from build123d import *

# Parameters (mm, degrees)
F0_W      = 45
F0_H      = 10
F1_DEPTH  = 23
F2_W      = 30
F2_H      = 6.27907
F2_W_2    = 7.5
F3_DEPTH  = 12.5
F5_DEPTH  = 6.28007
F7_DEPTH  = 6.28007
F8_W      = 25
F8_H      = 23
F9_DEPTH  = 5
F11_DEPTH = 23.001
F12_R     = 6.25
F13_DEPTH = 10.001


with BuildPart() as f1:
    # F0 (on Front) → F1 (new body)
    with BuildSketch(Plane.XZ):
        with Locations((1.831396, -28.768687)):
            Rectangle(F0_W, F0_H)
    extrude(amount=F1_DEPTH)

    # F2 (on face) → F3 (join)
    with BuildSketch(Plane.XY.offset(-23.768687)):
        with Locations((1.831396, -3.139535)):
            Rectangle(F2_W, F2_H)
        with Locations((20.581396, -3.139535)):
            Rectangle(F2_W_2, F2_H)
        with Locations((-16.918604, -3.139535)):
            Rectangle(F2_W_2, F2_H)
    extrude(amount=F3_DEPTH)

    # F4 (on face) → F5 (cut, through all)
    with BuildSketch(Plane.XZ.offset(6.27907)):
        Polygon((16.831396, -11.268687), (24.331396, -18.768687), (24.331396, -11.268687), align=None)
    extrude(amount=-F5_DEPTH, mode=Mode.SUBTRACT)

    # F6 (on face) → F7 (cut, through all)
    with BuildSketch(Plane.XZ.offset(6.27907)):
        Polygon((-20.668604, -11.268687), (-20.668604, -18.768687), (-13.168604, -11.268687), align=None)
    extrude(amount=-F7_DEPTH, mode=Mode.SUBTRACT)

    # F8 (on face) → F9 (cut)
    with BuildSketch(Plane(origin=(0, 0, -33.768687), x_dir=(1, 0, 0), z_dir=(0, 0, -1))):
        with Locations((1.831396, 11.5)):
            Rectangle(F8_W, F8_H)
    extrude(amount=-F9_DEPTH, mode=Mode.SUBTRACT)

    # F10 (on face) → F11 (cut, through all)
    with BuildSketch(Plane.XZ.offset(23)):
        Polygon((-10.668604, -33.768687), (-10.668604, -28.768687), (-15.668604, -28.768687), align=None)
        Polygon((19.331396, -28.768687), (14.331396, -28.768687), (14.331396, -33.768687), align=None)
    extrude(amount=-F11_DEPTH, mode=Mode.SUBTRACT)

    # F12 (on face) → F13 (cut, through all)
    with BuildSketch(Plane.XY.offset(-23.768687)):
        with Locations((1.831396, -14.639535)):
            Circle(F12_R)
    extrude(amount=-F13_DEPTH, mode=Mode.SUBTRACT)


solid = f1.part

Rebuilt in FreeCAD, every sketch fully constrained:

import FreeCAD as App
import Part
import Sketcher
from FreeCAD import Vector
Q = App.Units.Quantity

doc = App.newDocument("Part")
params = doc.addObject("Spreadsheet::Sheet", "Params")
for row, (alias, value) in enumerate([
    ("sketch1_width", "45 mm"),
    ("sketch1_height", "10 mm"),
    ("pad1_length", "23 mm"),
    ("sketch2_width", "45 mm"),
    ("pad2_length", "12.5 mm"),
    ("sketch3_width", "7.5 mm"),
    ("sketch4_width", "7.5 mm"),
    ("sketch5_width", "25 mm"),
    ("sketch5_height", "23 mm"),
    ("pocket3_length", "5 mm"),
    ("sketch6_width", "5 mm"),
    ("sketch7_diameter", "12.5 mm"),
], start=1):
    params.set(f"A{row}", alias)
    params.set(f"B{row}", "=" + value)
    params.setAlias(f"B{row}", alias)

body = doc.addObject("PartDesign::Body", "Body")

# Sketch on XZ plane
sketch1 = body.newObject("Sketcher::SketchObject", "Sketch")
sketch1.AttachmentSupport = (doc.getObject("XZ_Plane"), [""])
sketch1.MapMode = "FlatFace"
sketch1.addGeometry(Part.LineSegment(Vector(-21, -24, 0), Vector(-21, -34, 0)), False)
sketch1.addGeometry(Part.LineSegment(Vector(-21, -34, 0), Vector(24, -34, 0)), False)
sketch1.addGeometry(Part.LineSegment(Vector(24, -34, 0), Vector(24, -24, 0)), False)
sketch1.addGeometry(Part.LineSegment(Vector(24, -24, 0), Vector(-21, -24, 0)), False)
sketch1.addConstraint(Sketcher.Constraint("Coincident", 0, 2, 1, 1))
sketch1.addConstraint(Sketcher.Constraint("Coincident", 1, 2, 2, 1))
sketch1.addConstraint(Sketcher.Constraint("Coincident", 2, 2, 3, 1))
sketch1.addConstraint(Sketcher.Constraint("Coincident", 3, 2, 0, 1))
sketch1.addConstraint(Sketcher.Constraint("Vertical", 0))
sketch1.addConstraint(Sketcher.Constraint("Horizontal", 1))
sketch1.addConstraint(Sketcher.Constraint("Vertical", 2))
sketch1.addConstraint(Sketcher.Constraint("Horizontal", 3))
sketch1.addConstraint(Sketcher.Constraint("DistanceX", 1, 1, 1, 2, Q("45 mm")))
sketch1.addConstraint(Sketcher.Constraint("DistanceY", 0, 2, 0, 1, Q("10 mm")))
sketch1.addConstraint(Sketcher.Constraint("DistanceX", 0, 2, -1, 1, Q("20.668604 mm")))
sketch1.addConstraint(Sketcher.Constraint("DistanceY", 0, 2, -1, 1, Q("33.768687 mm")))
sketch1.setExpression("Constraints[8]", "Params.sketch1_width")
sketch1.setExpression("Constraints[9]", "Params.sketch1_height")
pad1 = body.newObject("PartDesign::Pad", "Pad")
pad1.Profile = sketch1
pad1.setExpression("Length", "Params.pad1_length")

# Sketch on XY plane
sketch2 = body.newObject("Sketcher::SketchObject", "Sketch001")
sketch2.AttachmentSupport = (doc.getObject("XY_Plane"), [""])
sketch2.MapMode = "FlatFace"
sketch2.AttachmentOffset = App.Placement(Vector(0, 0, -23.768687), App.Rotation())
sketch2.addGeometry(Part.LineSegment(Vector(24, -6, 0), Vector(24, 0, 0)), False)
sketch2.addGeometry(Part.LineSegment(Vector(24, 0, 0), Vector(-21, 0, 0)), False)
sketch2.addGeometry(Part.LineSegment(Vector(-21, 0, 0), Vector(-21, -6, 0)), False)
sketch2.addGeometry(Part.LineSegment(Vector(-21, -6, 0), Vector(24, -6, 0)), False)
sketch2.addConstraint(Sketcher.Constraint("Coincident", 0, 2, 1, 1))
sketch2.addConstraint(Sketcher.Constraint("Coincident", 1, 2, 2, 1))
sketch2.addConstraint(Sketcher.Constraint("Coincident", 2, 2, 3, 1))
sketch2.addConstraint(Sketcher.Constraint("Coincident", 3, 2, 0, 1))
sketch2.addConstraint(Sketcher.Constraint("Vertical", 0))
sketch2.addConstraint(Sketcher.Constraint("Horizontal", 1))
sketch2.addConstraint(Sketcher.Constraint("Vertical", 2))
sketch2.addConstraint(Sketcher.Constraint("Horizontal", 3))
sketch2.addConstraint(Sketcher.Constraint("PointOnObject", 0, 2, -1))
sketch2.addConstraint(Sketcher.Constraint("DistanceX", 1, 2, 1, 1, Q("45 mm")))
sketch2.addConstraint(Sketcher.Constraint("DistanceY", 0, 1, 0, 2, Q("6.27907 mm")))
sketch2.addConstraint(Sketcher.Constraint("DistanceX", -1, 1, 0, 2, Q("24.331396 mm")))
sketch2.setExpression("Constraints[9]", "Params.sketch2_width")
pad2 = body.newObject("PartDesign::Pad", "Pad001")
pad2.Profile = sketch2
pad2.setExpression("Length", "Params.pad2_length")

# Sketch on XZ plane
sketch3 = body.newObject("Sketcher::SketchObject", "Sketch002")
sketch3.AttachmentSupport = (doc.getObject("XZ_Plane"), [""])
sketch3.MapMode = "FlatFace"
sketch3.AttachmentOffset = App.Placement(Vector(0, 0, 6.27907), App.Rotation())
sketch3.addGeometry(Part.LineSegment(Vector(17, -11, 0), Vector(24, -19, 0)), False)
sketch3.addGeometry(Part.LineSegment(Vector(24, -19, 0), Vector(24, -11, 0)), False)
sketch3.addGeometry(Part.LineSegment(Vector(24, -11, 0), Vector(17, -11, 0)), False)
sketch3.addConstraint(Sketcher.Constraint("Coincident", 0, 2, 1, 1))
sketch3.addConstraint(Sketcher.Constraint("Coincident", 1, 2, 2, 1))
sketch3.addConstraint(Sketcher.Constraint("Coincident", 2, 2, 0, 1))
sketch3.addConstraint(Sketcher.Constraint("Vertical", 1))
sketch3.addConstraint(Sketcher.Constraint("Horizontal", 2))
sketch3.addConstraint(Sketcher.Constraint("Equal", 2, 1))
sketch3.addConstraint(Sketcher.Constraint("DistanceX", 2, 2, 2, 1, Q("7.5 mm")))
sketch3.addConstraint(Sketcher.Constraint("DistanceX", -1, 1, 0, 2, Q("24.331396 mm")))
sketch3.addConstraint(Sketcher.Constraint("DistanceY", 0, 2, -1, 1, Q("18.768687 mm")))
sketch3.setExpression("Constraints[6]", "Params.sketch3_width")
pocket1 = body.newObject("PartDesign::Pocket", "Pocket")
pocket1.Profile = sketch3
pocket1.Type = "ThroughAll"

# Sketch on XZ plane
sketch4 = body.newObject("Sketcher::SketchObject", "Sketch003")
sketch4.AttachmentSupport = (doc.getObject("XZ_Plane"), [""])
sketch4.MapMode = "FlatFace"
sketch4.AttachmentOffset = App.Placement(Vector(0, 0, 6.27907), App.Rotation())
sketch4.addGeometry(Part.LineSegment(Vector(-21, -11, 0), Vector(-21, -19, 0)), False)
sketch4.addGeometry(Part.LineSegment(Vector(-21, -19, 0), Vector(-13, -11, 0)), False)
sketch4.addGeometry(Part.LineSegment(Vector(-13, -11, 0), Vector(-21, -11, 0)), False)
sketch4.addConstraint(Sketcher.Constraint("Coincident", 0, 2, 1, 1))
sketch4.addConstraint(Sketcher.Constraint("Coincident", 1, 2, 2, 1))
sketch4.addConstraint(Sketcher.Constraint("Coincident", 2, 2, 0, 1))
sketch4.addConstraint(Sketcher.Constraint("Vertical", 0))
sketch4.addConstraint(Sketcher.Constraint("Horizontal", 2))
sketch4.addConstraint(Sketcher.Constraint("Equal", 2, 0))
sketch4.addConstraint(Sketcher.Constraint("DistanceX", 2, 2, 2, 1, Q("7.5 mm")))
sketch4.addConstraint(Sketcher.Constraint("DistanceX", 0, 2, -1, 1, Q("20.668604 mm")))
sketch4.addConstraint(Sketcher.Constraint("DistanceY", 0, 2, -1, 1, Q("18.768687 mm")))
sketch4.setExpression("Constraints[6]", "Params.sketch4_width")
pocket2 = body.newObject("PartDesign::Pocket", "Pocket001")
pocket2.Profile = sketch4
pocket2.Type = "ThroughAll"

# Sketch on XY plane
sketch5 = body.newObject("Sketcher::SketchObject", "Sketch004")
sketch5.AttachmentSupport = (doc.getObject("XY_Plane"), [""])
sketch5.MapMode = "FlatFace"
sketch5.AttachmentOffset = App.Placement(Vector(0, 0, -33.768687), App.Rotation())
sketch5.addGeometry(Part.LineSegment(Vector(-11, -23, 0), Vector(-11, 0, 0)), False)
sketch5.addGeometry(Part.LineSegment(Vector(-11, 0, 0), Vector(14, 0, 0)), False)
sketch5.addGeometry(Part.LineSegment(Vector(14, 0, 0), Vector(14, -23, 0)), False)
sketch5.addGeometry(Part.LineSegment(Vector(14, -23, 0), Vector(-11, -23, 0)), False)
sketch5.addConstraint(Sketcher.Constraint("Coincident", 0, 2, 1, 1))
sketch5.addConstraint(Sketcher.Constraint("Coincident", 1, 2, 2, 1))
sketch5.addConstraint(Sketcher.Constraint("Coincident", 2, 2, 3, 1))
sketch5.addConstraint(Sketcher.Constraint("Coincident", 3, 2, 0, 1))
sketch5.addConstraint(Sketcher.Constraint("Vertical", 0))
sketch5.addConstraint(Sketcher.Constraint("Horizontal", 1))
sketch5.addConstraint(Sketcher.Constraint("Vertical", 2))
sketch5.addConstraint(Sketcher.Constraint("Horizontal", 3))
sketch5.addConstraint(Sketcher.Constraint("PointOnObject", 0, 2, -1))
sketch5.addConstraint(Sketcher.Constraint("DistanceX", 1, 1, 1, 2, Q("25 mm")))
sketch5.addConstraint(Sketcher.Constraint("DistanceY", 0, 1, 0, 2, Q("23 mm")))
sketch5.addConstraint(Sketcher.Constraint("DistanceX", 0, 2, -1, 1, Q("10.668604 mm")))
sketch5.setExpression("Constraints[9]", "Params.sketch5_width")
sketch5.setExpression("Constraints[10]", "Params.sketch5_height")
pocket3 = body.newObject("PartDesign::Pocket", "Pocket002")
pocket3.Profile = sketch5
pocket3.setExpression("Length", "Params.pocket3_length")
pocket3.Reversed = True

# Sketch on XZ plane
sketch6 = body.newObject("Sketcher::SketchObject", "Sketch005")
sketch6.AttachmentSupport = (doc.getObject("XZ_Plane"), [""])
sketch6.MapMode = "FlatFace"
sketch6.AttachmentOffset = App.Placement(Vector(0, 0, 23), App.Rotation())
sketch6.addGeometry(Part.LineSegment(Vector(-11, -34, 0), Vector(-11, -29, 0)), False)
sketch6.addGeometry(Part.LineSegment(Vector(-11, -29, 0), Vector(-16, -29, 0)), False)
sketch6.addGeometry(Part.LineSegment(Vector(-16, -29, 0), Vector(-11, -34, 0)), False)
sketch6.addGeometry(Part.LineSegment(Vector(19, -29, 0), Vector(14, -29, 0)), False)
sketch6.addGeometry(Part.LineSegment(Vector(14, -29, 0), Vector(14, -34, 0)), False)
sketch6.addGeometry(Part.LineSegment(Vector(14, -34, 0), Vector(19, -29, 0)), False)
sketch6.addConstraint(Sketcher.Constraint("Coincident", 0, 2, 1, 1))
sketch6.addConstraint(Sketcher.Constraint("Coincident", 1, 2, 2, 1))
sketch6.addConstraint(Sketcher.Constraint("Coincident", 2, 2, 0, 1))
sketch6.addConstraint(Sketcher.Constraint("Coincident", 3, 2, 4, 1))
sketch6.addConstraint(Sketcher.Constraint("Coincident", 4, 2, 5, 1))
sketch6.addConstraint(Sketcher.Constraint("Coincident", 5, 2, 3, 1))
sketch6.addConstraint(Sketcher.Constraint("Vertical", 0))
sketch6.addConstraint(Sketcher.Constraint("Horizontal", 1))
sketch6.addConstraint(Sketcher.Constraint("Horizontal", 3))
sketch6.addConstraint(Sketcher.Constraint("Vertical", 4))
sketch6.addConstraint(Sketcher.Constraint("Perpendicular", 2, 5))
sketch6.addConstraint(Sketcher.Constraint("Horizontal", 1, 2, 3, 2))
sketch6.addConstraint(Sketcher.Constraint("Horizontal", 2, 2, 4, 2))
sketch6.addConstraint(Sketcher.Constraint("Equal", 1, 3))
sketch6.addConstraint(Sketcher.Constraint("DistanceX", 1, 2, 1, 1, Q("5 mm")))
sketch6.addConstraint(Sketcher.Constraint("DistanceX", 0, 2, 3, 2, Q("25 mm")))
sketch6.addConstraint(Sketcher.Constraint("DistanceX", 0, 2, -1, 1, Q("10.668604 mm")))
sketch6.addConstraint(Sketcher.Constraint("DistanceY", 0, 2, -1, 1, Q("28.768687 mm")))
sketch6.setExpression("Constraints[14]", "Params.sketch6_width")
pocket4 = body.newObject("PartDesign::Pocket", "Pocket003")
pocket4.Profile = sketch6
pocket4.Type = "ThroughAll"

# Sketch on XY plane
sketch7 = body.newObject("Sketcher::SketchObject", "Sketch006")
sketch7.AttachmentSupport = (doc.getObject("XY_Plane"), [""])
sketch7.MapMode = "FlatFace"
sketch7.AttachmentOffset = App.Placement(Vector(0, 0, -23.768687), App.Rotation())
sketch7.addGeometry(Part.Circle(Vector(2, -15, 0), Vector(0, 0, 1), 6), False)
sketch7.addConstraint(Sketcher.Constraint("Diameter", 0, Q("12.5 mm")))
sketch7.addConstraint(Sketcher.Constraint("DistanceX", -1, 1, 0, 3, Q("1.831396 mm")))
sketch7.addConstraint(Sketcher.Constraint("DistanceY", 0, 3, -1, 1, Q("14.639535 mm")))
sketch7.setExpression("Constraints[0]", "Params.sketch7_diameter")
pocket5 = body.newObject("PartDesign::Pocket", "Pocket004")
pocket5.Profile = sketch7
pocket5.Type = "ThroughAll"

doc.recompute()
